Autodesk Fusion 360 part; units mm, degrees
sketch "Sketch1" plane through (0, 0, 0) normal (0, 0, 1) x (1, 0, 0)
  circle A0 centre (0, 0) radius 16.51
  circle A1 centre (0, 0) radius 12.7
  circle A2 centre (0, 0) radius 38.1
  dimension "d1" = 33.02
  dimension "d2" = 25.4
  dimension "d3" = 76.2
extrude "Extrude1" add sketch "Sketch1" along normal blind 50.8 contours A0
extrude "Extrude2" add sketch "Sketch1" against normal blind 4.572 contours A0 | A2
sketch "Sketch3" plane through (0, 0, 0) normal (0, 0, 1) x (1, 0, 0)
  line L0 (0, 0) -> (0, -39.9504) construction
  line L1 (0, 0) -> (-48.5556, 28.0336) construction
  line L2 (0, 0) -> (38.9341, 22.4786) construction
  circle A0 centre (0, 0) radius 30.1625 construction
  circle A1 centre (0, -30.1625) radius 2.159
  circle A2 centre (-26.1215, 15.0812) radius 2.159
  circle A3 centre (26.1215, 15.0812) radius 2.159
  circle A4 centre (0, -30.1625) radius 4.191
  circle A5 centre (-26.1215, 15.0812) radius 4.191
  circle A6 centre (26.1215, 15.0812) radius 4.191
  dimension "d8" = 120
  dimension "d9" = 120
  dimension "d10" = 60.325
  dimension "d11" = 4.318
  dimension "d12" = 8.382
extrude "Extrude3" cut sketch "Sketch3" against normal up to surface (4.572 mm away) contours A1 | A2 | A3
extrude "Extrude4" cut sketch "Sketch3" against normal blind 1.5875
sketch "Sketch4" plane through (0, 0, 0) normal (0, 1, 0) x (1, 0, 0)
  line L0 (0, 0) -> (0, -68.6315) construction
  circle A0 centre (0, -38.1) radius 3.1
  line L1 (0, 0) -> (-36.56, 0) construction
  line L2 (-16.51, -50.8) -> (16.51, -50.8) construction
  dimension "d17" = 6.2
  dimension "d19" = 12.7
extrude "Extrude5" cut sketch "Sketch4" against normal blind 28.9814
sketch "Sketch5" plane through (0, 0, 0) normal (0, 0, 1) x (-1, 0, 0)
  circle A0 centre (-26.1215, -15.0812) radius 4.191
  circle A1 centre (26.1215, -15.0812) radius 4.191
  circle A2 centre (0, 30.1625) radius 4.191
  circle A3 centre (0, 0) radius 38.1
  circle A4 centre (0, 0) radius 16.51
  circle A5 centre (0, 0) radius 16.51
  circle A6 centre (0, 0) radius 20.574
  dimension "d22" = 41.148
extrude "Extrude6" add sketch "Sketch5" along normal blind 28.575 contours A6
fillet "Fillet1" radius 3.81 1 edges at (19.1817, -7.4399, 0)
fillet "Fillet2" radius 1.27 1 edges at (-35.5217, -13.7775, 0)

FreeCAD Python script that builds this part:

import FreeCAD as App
import Part
import Sketcher
from FreeCAD import Vector
Q = App.Units.Quantity


def edges_at(feature, points):
    """Names of the edges that pass closest to the given points."""
    edges = feature.Shape.Edges
    near = lambda p: min(range(len(edges)), key=lambda i: edges[i].distToShape(Part.Vertex(*p))[0])
    return sorted({f"Edge{near(p) + 1}" for p in points})

doc = App.newDocument("Part")
body = doc.addObject("PartDesign::Body", "Body")

# Sketch on XY plane
sketch1 = body.newObject("Sketcher::SketchObject", "Sketch")
sketch1.AttachmentSupport = (doc.getObject("XY_Plane"), [""])
sketch1.MapMode = "FlatFace"
sketch1.addGeometry([
    Part.Circle(Vector(0, 0, 0), Vector(0, 0, 1), 17),
    Part.Circle(Vector(0, 0, 0), Vector(0, 0, 1), 13),
], False)
sketch1.addConstraint([
    Sketcher.Constraint("Coincident", 0, 3, -1, 1),
    Sketcher.Constraint("Coincident", 1, 3, -1, 1),
    Sketcher.Constraint("Diameter", 1, Q("1 in")),
    Sketcher.Constraint("Diameter", 0, Q("1.3 in")),
])
pad1 = body.newObject("PartDesign::Pad", "Pad")
pad1.Profile = sketch1
pad1.Length = Q("2 in")

# Sketch on XY plane
sketch2 = body.newObject("Sketcher::SketchObject", "Sketch001")
sketch2.AttachmentSupport = (doc.getObject("XY_Plane"), [""])
sketch2.MapMode = "FlatFace"
sketch2.addGeometry([
    Part.Circle(Vector(0, 0, 0), Vector(0, 0, 1), 38),
    Part.Circle(Vector(0, 0, 0), Vector(0, 0, 1), 13),
], False)
sketch2.addConstraint([
    Sketcher.Constraint("Coincident", 0, 3, -1, 1),
    Sketcher.Constraint("Coincident", 1, 3, -1, 1),
    Sketcher.Constraint("Diameter", 0, Q("3 in")),
    Sketcher.Constraint("Diameter", 1, Q("1 in")),
])
pad2 = body.newObject("PartDesign::Pad", "Pad001")
pad2.Profile = sketch2
pad2.Length = Q("0.18 in")
pad2.Reversed = True

# Sketch on XY plane
sketch3 = body.newObject("Sketcher::SketchObject", "Sketch002")
sketch3.AttachmentSupport = (doc.getObject("XY_Plane"), [""])
sketch3.MapMode = "FlatFace"
sketch3.addGeometry([
    Part.Circle(Vector(0, -30.2, 0), Vector(0, 0, 1), 2.2),
    Part.Circle(Vector(-26.1, 15.1, 0), Vector(0, 0, 1), 2.2),
    Part.Circle(Vector(26.1, 15.1, 0), Vector(0, 0, 1), 2.2),
], False)
sketch3.addConstraint([
    Sketcher.Constraint("Equal", 0, 1),
    Sketcher.Constraint("Equal", 1, 2),
    Sketcher.Constraint("Symmetric", 1, 3, 2, 3, -2),
    Sketcher.Constraint("PointOnObject", 0, 3, -2),
    Sketcher.Constraint("Diameter", 0, Q("0.17 in")),
    Sketcher.Constraint("DistanceY", 0, 3, -1, 1, Q("1.1875 in")),
    Sketcher.Constraint("DistanceY", -1, 1, 1, 3, Q("0.593748 in")),
    Sketcher.Constraint("DistanceX", 1, 3, -1, 1, Q("1.0284 in")),
])
pocket1 = body.newObject("PartDesign::Pocket", "Pocket")
pocket1.Profile = sketch3
pocket1.Length = Q("0.18 in")

# Sketch on XY plane
sketch4 = body.newObject("Sketcher::SketchObject", "Sketch003")
sketch4.AttachmentSupport = (doc.getObject("XY_Plane"), [""])
sketch4.MapMode = "FlatFace"
sketch4.addGeometry([
    Part.Circle(Vector(0, -30.2, 0), Vector(0, 0, 1), 4.2),  # 0
    Part.Circle(Vector(0, -30.2, 0), Vector(0, 0, 1), 2.2),  # 1
    Part.Circle(Vector(-26.1, 15.1, 0), Vector(0, 0, 1), 4.2),  # 2
    Part.Circle(Vector(-26.1, 15.1, 0), Vector(0, 0, 1), 2.2),  # 3
    Part.Circle(Vector(26.1, 15.1, 0), Vector(0, 0, 1), 4.2),  # 4
    Part.Circle(Vector(26.1, 15.1, 0), Vector(0, 0, 1), 2.2),  # 5
], False)
sketch4.addConstraint([
    Sketcher.Constraint("Coincident", 1, 3, 0, 3),
    Sketcher.Constraint("Coincident", 3, 3, 2, 3),
    Sketcher.Constraint("Coincident", 5, 3, 4, 3),
    Sketcher.Constraint("Equal", 0, 2),
    Sketcher.Constraint("Equal", 1, 3),
    Sketcher.Constraint("Equal", 2, 4),
    Sketcher.Constraint("Equal", 3, 5),
    Sketcher.Constraint("Symmetric", 2, 3, 4, 3, -2),
    Sketcher.Constraint("PointOnObject", 0, 3, -2),
    Sketcher.Constraint("Diameter", 0, Q("0.33 in")),
    Sketcher.Constraint("Diameter", 1, Q("0.17 in")),
    Sketcher.Constraint("DistanceY", 0, 3, -1, 1, Q("1.1875 in")),
    Sketcher.Constraint("DistanceY", -1, 1, 2, 3, Q("0.593748 in")),
    Sketcher.Constraint("DistanceX", 2, 3, -1, 1, Q("1.0284 in")),
])
pocket2 = body.newObject("PartDesign::Pocket", "Pocket001")
pocket2.Profile = sketch4
pocket2.Length = Q("0.0625 in")

# Sketch on XZ plane
sketch5 = body.newObject("Sketcher::SketchObject", "Sketch004")
sketch5.AttachmentSupport = (doc.getObject("XZ_Plane"), [""])
sketch5.MapMode = "FlatFace"
sketch5.addGeometry(Part.Circle(Vector(0, 38.1, 0), Vector(0, 0, 1), 3.1), False)
sketch5.addConstraint([
    Sketcher.Constraint("PointOnObject", 0, 3, -2),
    Sketcher.Constraint("Diameter", 0, Q("0.2441 in")),
    Sketcher.Constraint("DistanceY", -1, 1, 0, 3, Q("1.5 in")),
])
pocket3 = body.newObject("PartDesign::Pocket", "Pocket002")
pocket3.Profile = sketch5
pocket3.Length = Q("1.141 in")
pocket3.Reversed = True

# Sketch on XY plane
sketch6 = body.newObject("Sketcher::SketchObject", "Sketch005")
sketch6.AttachmentSupport = (doc.getObject("XY_Plane"), [""])
sketch6.MapMode = "FlatFace"
sketch6.addGeometry([
    Part.Circle(Vector(0, 0, 0), Vector(0, 0, 1), 21),
    Part.Circle(Vector(0, 0, 0), Vector(0, 0, 1), 17),
], False)
sketch6.addConstraint([
    Sketcher.Constraint("Coincident", 0, 3, -1, 1),
    Sketcher.Constraint("Coincident", 1, 3, -1, 1),
    Sketcher.Constraint("Diameter", 0, Q("1.62 in")),
    Sketcher.Constraint("Diameter", 1, Q("1.3 in")),
])
pad3 = body.newObject("PartDesign::Pad", "Pad002")
pad3.Profile = sketch6
pad3.Length = Q("1.125 in")
doc.recompute()

fillet = body.newObject("PartDesign::Fillet", "Fillet")
fillet.Base = (pad3, edges_at(pad3, [(19.182, -7.44, 0)]))
fillet.Radius = Q("0.15 in")
doc.recompute()

fillet2 = body.newObject("PartDesign::Fillet", "Fillet001")
fillet2.Base = (fillet, edges_at(fillet, [(-35.522, -13.777, 0)]))
fillet2.Radius = Q("0.05 in")

doc.recompute()
